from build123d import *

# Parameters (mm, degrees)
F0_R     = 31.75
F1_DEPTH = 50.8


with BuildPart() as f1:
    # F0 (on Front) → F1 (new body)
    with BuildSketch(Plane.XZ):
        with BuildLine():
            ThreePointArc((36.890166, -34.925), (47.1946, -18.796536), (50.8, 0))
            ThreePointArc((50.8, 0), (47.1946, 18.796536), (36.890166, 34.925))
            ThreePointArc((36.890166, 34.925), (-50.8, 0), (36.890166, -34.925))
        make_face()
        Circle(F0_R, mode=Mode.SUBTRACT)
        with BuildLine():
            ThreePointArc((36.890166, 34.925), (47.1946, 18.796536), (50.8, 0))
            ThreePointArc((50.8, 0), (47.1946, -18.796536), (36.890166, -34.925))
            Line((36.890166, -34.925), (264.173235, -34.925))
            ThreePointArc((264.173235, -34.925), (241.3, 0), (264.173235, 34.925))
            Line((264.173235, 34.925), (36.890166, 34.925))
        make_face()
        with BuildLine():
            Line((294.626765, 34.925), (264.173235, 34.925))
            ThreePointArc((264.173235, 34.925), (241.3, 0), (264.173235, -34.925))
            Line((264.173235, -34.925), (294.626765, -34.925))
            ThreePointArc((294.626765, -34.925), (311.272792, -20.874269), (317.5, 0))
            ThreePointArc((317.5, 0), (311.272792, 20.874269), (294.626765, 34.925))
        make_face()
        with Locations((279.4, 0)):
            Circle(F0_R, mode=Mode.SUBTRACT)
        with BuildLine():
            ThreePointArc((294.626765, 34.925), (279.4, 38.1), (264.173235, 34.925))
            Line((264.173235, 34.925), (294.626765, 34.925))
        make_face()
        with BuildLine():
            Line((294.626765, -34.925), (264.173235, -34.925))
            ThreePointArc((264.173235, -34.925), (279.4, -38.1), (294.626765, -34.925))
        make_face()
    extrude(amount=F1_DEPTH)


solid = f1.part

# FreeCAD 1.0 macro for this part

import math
import FreeCAD as App
import Part
import Sketcher

V = App.Vector
Q = App.Units.Quantity

doc = App.newDocument("Part")
body = doc.addObject("PartDesign::Body", "Body")

# Sketch on XZ plane
sketch1 = body.newObject("Sketcher::SketchObject", "Sketch")
sketch1.AttachmentSupport = (doc.getObject("XZ_Plane"), [""])
sketch1.MapMode = "FlatFace"
sketch1.addGeometry([
    Part.ArcOfCircle(Part.Circle(V(0, 0, 0), V(0, 0, 1), 51), math.radians(43), math.radians(317)),  # 0
    Part.LineSegment(V(37, -35, 0), V(264, -35, 0)),  # 1
    Part.ArcOfCircle(Part.Circle(V(279, 0, 0), V(0, 0, 1), 38), math.radians(-114), math.radians(-66)),  # 2
    Part.ArcOfCircle(Part.Circle(V(279, 0, 0), V(0, 0, 1), 38), math.radians(-66), math.radians(0)),  # 3
    Part.ArcOfCircle(Part.Circle(V(279, 0, 0), V(0, 0, 1), 38), math.radians(0), math.radians(66)),  # 4
    Part.ArcOfCircle(Part.Circle(V(279, 0, 0), V(0, 0, 1), 38), math.radians(66), math.radians(114)),  # 5
    Part.LineSegment(V(264, 35, 0), V(37, 35, 0)),  # 6
    Part.Circle(V(0, 0, 0), V(0, 0, 1), 32),  # 7
    Part.Circle(V(279, 0, 0), V(0, 0, 1), 32),  # 8
], False)
sketch1.addConstraint([
    Sketcher.Constraint("Coincident", 0, 2, 1, 1),
    Sketcher.Constraint("Coincident", 1, 2, 2, 1),
    Sketcher.Constraint("Tangent", 2, 2, 3, 1),
    Sketcher.Constraint("Tangent", 3, 2, 4, 1),
    Sketcher.Constraint("Tangent", 4, 2, 5, 1),
    Sketcher.Constraint("Coincident", 5, 2, 6, 1),
    Sketcher.Constraint("Coincident", 6, 2, 0, 1),
    Sketcher.Constraint("Horizontal", 1),
    Sketcher.Constraint("Horizontal", 6),
    Sketcher.Constraint("Coincident", 0, 3, -1, 1),
    Sketcher.Constraint("Coincident", 7, 3, -1, 1),
    Sketcher.Constraint("Coincident", 4, 3, 2, 3),
    Sketcher.Constraint("Coincident", 8, 3, 2, 3),
    Sketcher.Constraint("Equal", 4, 5),
    Sketcher.Constraint("Equal", 7, 8),
    Sketcher.Constraint("Symmetric", 2, 2, 4, 2, -1),
    Sketcher.Constraint("PointOnObject", 3, 2, -1),
    Sketcher.Constraint("Horizontal", 1, 2, 2, 2),
    Sketcher.Constraint("Horizontal", 4, 2, 5, 2),
    Sketcher.Constraint("Radius", 0, Q("2 in")),
    Sketcher.Constraint("Diameter", 7, Q("2.5 in")),
    Sketcher.Constraint("Radius", 2, Q("1.5 in")),
    Sketcher.Constraint("DistanceX", -1, 1, 2, 3, Q("11 in")),
    Sketcher.Constraint("DistanceY", 0, 2, 6, 2, Q("2.75 in")),
])
pad1 = body.newObject("PartDesign::Pad", "Pad")
pad1.Profile = sketch1
pad1.Length = Q("2 in")

doc.recompute()
